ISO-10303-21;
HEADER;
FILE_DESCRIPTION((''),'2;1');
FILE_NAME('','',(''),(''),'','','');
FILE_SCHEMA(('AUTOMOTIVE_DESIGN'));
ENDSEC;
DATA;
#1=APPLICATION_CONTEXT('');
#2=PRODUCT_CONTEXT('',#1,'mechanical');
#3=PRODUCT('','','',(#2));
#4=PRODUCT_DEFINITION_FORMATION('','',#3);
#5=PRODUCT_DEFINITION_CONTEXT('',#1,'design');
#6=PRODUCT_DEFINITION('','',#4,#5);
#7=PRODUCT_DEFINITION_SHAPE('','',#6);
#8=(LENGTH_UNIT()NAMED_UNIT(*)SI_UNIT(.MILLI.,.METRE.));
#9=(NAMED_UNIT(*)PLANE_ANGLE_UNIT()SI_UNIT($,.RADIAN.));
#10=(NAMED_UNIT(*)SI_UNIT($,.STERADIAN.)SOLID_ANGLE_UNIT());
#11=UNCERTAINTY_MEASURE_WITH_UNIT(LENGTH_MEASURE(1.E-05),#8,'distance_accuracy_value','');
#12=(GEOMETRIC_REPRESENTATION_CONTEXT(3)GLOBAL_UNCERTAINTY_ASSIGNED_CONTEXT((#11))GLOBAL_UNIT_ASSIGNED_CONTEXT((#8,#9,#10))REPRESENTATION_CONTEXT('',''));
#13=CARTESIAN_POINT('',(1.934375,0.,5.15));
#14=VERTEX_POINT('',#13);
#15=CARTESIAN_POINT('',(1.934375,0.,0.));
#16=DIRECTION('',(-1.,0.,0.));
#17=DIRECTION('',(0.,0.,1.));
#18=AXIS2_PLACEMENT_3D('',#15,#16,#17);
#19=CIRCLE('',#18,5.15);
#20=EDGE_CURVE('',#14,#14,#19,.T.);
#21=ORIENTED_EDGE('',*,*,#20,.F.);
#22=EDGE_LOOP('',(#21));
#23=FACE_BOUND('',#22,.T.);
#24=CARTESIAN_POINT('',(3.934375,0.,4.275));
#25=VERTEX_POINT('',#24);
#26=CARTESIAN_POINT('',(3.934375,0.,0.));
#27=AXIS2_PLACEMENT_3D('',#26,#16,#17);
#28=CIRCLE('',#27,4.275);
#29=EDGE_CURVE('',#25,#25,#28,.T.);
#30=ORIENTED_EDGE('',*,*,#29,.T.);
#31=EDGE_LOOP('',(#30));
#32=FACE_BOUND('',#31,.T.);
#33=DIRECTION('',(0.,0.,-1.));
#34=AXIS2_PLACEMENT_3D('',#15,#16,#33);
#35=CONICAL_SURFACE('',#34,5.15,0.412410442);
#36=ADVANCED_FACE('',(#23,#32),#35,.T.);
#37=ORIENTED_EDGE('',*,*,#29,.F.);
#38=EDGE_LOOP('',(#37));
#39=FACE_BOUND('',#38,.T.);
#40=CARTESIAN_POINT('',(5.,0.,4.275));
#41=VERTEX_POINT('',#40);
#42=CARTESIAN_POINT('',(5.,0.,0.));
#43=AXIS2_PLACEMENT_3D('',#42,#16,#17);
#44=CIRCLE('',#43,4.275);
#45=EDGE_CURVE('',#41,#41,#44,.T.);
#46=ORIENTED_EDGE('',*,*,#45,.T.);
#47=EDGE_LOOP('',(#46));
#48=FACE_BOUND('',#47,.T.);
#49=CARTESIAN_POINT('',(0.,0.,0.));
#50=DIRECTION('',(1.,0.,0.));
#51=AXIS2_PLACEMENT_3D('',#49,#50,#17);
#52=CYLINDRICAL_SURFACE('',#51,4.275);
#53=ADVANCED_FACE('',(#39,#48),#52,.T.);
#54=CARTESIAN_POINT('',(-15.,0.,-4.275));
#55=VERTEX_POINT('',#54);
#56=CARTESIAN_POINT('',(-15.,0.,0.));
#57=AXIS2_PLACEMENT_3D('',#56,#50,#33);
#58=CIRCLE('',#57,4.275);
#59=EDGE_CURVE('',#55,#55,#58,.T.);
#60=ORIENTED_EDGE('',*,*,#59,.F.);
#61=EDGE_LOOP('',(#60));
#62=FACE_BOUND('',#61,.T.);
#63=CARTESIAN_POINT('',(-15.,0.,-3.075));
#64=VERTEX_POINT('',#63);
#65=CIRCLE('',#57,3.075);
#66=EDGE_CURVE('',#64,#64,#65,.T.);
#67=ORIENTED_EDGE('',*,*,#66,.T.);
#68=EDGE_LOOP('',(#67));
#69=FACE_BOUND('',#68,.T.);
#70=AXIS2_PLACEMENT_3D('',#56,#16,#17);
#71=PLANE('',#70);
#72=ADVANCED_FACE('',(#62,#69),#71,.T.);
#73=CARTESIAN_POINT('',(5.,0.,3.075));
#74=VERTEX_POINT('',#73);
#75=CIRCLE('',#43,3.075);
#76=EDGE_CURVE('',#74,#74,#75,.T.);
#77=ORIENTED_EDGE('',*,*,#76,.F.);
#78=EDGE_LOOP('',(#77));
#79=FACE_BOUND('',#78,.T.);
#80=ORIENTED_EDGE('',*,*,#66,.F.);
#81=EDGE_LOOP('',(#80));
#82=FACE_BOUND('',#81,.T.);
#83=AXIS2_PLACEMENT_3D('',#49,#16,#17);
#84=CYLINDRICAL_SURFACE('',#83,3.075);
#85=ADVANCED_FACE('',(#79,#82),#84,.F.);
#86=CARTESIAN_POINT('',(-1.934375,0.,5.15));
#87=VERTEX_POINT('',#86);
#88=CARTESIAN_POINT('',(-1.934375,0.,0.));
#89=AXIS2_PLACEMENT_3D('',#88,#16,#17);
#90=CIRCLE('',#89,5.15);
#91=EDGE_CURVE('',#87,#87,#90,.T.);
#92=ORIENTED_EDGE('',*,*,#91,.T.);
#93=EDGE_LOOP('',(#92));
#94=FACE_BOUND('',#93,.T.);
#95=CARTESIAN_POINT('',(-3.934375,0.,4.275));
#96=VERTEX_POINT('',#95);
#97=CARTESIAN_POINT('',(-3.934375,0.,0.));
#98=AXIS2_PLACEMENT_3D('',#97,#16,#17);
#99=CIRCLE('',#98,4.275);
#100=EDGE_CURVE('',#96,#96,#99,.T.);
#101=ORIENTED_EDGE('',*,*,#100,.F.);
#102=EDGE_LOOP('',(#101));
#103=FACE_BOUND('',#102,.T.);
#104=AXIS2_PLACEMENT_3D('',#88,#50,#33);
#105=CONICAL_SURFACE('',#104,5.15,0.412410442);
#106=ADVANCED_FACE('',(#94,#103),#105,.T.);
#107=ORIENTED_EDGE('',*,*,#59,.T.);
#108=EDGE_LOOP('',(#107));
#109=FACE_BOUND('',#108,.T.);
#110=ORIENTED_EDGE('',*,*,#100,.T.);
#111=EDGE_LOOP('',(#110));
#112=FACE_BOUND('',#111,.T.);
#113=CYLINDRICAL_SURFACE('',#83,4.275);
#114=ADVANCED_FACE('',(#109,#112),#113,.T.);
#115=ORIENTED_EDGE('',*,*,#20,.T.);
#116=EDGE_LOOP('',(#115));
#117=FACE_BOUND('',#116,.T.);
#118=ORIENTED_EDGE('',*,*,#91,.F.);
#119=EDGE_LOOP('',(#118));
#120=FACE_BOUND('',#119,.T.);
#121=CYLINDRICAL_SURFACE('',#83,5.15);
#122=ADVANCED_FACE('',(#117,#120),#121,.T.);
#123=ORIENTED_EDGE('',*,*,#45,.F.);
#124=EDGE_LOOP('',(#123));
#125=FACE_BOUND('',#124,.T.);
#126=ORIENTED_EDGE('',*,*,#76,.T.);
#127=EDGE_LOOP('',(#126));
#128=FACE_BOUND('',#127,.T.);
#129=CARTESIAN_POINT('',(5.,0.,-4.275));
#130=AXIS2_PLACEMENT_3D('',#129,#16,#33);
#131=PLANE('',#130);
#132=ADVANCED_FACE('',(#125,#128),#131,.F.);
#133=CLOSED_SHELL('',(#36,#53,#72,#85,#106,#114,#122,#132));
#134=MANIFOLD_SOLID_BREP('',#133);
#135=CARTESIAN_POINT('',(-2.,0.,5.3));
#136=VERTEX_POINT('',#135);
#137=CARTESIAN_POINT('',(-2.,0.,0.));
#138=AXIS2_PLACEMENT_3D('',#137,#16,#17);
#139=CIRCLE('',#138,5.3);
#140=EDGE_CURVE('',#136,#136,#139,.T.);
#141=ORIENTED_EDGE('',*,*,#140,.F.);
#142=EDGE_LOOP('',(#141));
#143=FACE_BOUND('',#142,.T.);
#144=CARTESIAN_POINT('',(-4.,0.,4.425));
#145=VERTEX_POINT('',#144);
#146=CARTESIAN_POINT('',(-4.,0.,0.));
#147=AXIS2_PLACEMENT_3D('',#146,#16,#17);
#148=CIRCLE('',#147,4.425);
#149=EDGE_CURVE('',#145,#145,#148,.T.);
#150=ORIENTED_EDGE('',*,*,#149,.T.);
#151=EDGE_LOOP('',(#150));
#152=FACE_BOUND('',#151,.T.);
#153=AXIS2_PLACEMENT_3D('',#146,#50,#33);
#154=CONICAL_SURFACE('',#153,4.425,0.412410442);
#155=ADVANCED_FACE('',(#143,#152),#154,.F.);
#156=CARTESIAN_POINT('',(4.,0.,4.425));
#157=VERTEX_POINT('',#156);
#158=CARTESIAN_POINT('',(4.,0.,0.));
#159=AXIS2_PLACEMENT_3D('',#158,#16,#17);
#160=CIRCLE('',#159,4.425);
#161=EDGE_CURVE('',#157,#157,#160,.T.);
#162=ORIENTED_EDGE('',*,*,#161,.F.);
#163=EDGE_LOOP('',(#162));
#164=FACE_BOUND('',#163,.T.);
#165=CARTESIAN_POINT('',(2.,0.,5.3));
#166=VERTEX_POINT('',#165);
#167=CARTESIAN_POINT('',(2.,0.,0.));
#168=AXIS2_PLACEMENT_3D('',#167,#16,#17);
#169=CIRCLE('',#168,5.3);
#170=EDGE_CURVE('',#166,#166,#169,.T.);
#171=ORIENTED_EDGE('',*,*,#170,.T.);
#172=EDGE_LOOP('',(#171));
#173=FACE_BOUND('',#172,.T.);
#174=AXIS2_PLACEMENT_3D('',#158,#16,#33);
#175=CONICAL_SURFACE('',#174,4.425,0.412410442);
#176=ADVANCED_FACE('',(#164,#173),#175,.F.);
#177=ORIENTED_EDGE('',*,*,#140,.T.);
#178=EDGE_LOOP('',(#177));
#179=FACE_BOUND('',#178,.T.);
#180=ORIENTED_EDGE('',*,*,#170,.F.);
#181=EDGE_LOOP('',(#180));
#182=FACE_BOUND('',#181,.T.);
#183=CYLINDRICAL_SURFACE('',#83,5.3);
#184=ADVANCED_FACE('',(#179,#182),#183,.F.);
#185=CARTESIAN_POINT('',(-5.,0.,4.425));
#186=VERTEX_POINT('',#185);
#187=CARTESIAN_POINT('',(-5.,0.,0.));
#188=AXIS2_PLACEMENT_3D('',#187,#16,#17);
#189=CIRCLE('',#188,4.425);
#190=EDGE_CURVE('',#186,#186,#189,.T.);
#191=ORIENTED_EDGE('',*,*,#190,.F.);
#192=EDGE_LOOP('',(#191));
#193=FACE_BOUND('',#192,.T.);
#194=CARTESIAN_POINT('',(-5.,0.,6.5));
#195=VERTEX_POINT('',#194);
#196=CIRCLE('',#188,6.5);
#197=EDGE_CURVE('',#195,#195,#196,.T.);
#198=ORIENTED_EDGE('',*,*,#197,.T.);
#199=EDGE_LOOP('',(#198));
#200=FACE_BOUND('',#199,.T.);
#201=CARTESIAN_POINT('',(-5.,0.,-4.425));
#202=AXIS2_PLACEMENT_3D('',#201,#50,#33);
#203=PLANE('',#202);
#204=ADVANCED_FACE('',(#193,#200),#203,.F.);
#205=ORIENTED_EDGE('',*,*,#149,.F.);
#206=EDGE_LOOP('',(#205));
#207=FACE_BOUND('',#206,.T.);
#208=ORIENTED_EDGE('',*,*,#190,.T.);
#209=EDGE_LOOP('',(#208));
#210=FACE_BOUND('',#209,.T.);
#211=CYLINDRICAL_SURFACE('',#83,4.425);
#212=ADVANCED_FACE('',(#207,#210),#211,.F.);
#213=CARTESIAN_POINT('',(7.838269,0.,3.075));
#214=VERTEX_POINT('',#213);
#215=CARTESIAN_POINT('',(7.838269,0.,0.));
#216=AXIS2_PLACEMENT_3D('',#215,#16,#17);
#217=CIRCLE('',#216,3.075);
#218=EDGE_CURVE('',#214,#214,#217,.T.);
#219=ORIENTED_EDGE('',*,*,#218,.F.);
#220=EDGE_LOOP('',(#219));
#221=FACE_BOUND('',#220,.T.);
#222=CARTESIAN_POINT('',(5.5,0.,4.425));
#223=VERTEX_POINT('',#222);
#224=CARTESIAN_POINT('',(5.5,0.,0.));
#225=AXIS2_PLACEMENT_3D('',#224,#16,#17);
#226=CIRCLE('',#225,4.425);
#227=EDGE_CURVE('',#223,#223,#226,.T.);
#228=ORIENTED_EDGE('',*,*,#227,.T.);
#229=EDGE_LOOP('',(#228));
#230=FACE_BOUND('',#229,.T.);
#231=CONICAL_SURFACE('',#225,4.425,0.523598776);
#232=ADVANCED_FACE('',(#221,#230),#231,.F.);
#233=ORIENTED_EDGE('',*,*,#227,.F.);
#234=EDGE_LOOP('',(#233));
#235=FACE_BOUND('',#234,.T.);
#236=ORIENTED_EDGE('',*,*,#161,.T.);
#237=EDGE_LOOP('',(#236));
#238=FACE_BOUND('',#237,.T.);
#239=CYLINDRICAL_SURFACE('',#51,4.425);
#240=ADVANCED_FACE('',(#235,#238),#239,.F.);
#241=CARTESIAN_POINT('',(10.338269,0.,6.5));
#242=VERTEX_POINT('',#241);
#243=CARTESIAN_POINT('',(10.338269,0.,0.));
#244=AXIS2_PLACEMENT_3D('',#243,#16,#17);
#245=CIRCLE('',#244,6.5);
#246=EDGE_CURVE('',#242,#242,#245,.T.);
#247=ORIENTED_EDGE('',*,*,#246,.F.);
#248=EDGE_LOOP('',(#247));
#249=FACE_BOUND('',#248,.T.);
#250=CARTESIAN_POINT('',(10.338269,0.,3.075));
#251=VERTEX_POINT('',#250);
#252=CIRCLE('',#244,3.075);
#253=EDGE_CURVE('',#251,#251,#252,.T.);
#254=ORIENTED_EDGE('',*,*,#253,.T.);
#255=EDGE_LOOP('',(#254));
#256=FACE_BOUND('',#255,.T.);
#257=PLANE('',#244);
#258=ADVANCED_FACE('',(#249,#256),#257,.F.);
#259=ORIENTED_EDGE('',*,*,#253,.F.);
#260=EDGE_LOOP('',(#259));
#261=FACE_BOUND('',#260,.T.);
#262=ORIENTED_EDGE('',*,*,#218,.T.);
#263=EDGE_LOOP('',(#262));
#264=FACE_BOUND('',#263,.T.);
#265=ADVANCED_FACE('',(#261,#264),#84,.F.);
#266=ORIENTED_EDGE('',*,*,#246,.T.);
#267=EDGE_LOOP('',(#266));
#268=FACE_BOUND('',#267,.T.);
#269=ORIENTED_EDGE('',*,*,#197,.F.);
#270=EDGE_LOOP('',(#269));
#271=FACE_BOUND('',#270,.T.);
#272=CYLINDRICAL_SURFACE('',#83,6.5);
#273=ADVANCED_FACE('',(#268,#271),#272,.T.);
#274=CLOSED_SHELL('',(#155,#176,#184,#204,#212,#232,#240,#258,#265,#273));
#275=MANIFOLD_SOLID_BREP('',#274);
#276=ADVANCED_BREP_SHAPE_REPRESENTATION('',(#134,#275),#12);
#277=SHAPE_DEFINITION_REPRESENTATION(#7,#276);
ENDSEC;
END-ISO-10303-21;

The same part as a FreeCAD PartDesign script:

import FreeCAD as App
import Part
import Sketcher
Q = App.Units.Quantity

doc = App.newDocument("Part")
body = doc.addObject("PartDesign::Body", "Body")
body.AllowCompound = True

# Sketch on XZ plane
sketch1 = body.newObject("Sketcher::SketchObject", "Sketch")
sketch1.AttachmentSupport = (doc.getObject("XZ_Plane"), [""])
sketch1.MapMode = "FlatFace"
sketch1.addGeometry(Part.LineSegment(App.Vector(-5, -6.5, 0), App.Vector(-5, -4.4, 0)), False)
sketch1.addGeometry(Part.LineSegment(App.Vector(-5, -4.4, 0), App.Vector(-4, -4.4, 0)), False)
sketch1.addGeometry(Part.LineSegment(App.Vector(-4, -4.4, 0), App.Vector(-2, -5.3, 0)), False)
sketch1.addGeometry(Part.LineSegment(App.Vector(-2, -5.3, 0), App.Vector(0, -5.3, 0)), False)
sketch1.addGeometry(Part.LineSegment(App.Vector(0, -5.3, 0), App.Vector(0, -6.5, 0)), False)
sketch1.addGeometry(Part.LineSegment(App.Vector(0, -6.5, 0), App.Vector(-5, -6.5, 0)), False)
sketch1.addGeometry(Part.LineSegment(App.Vector(0, -5.2, 0), App.Vector(-1.9, -5.2, 0)), False)
sketch1.addGeometry(Part.LineSegment(App.Vector(-1.9, -5.2, 0), App.Vector(-3.9, -4.3, 0)), False)
sketch1.addGeometry(Part.LineSegment(App.Vector(-3.9, -4.3, 0), App.Vector(-5, -4.3, 0)), False)
sketch1.addGeometry(Part.LineSegment(App.Vector(-5, -4.3, 0), App.Vector(-5, -3.1, 0)), False)
sketch1.addGeometry(Part.LineSegment(App.Vector(-5, -3.1, 0), App.Vector(0, -3.1, 0)), False)
sketch1.addGeometry(Part.LineSegment(App.Vector(0, -3.1, 0), App.Vector(0, -5.2, 0)), False)
sketch1.addConstraint(Sketcher.Constraint("Coincident", 0, 2, 1, 1))
sketch1.addConstraint(Sketcher.Constraint("Coincident", 1, 2, 2, 1))
sketch1.addConstraint(Sketcher.Constraint("Coincident", 2, 2, 3, 1))
sketch1.addConstraint(Sketcher.Constraint("Coincident", 3, 2, 4, 1))
sketch1.addConstraint(Sketcher.Constraint("Coincident", 4, 2, 5, 1))
sketch1.addConstraint(Sketcher.Constraint("Coincident", 5, 2, 0, 1))
sketch1.addConstraint(Sketcher.Constraint("Coincident", 6, 2, 7, 1))
sketch1.addConstraint(Sketcher.Constraint("Coincident", 7, 2, 8, 1))
sketch1.addConstraint(Sketcher.Constraint("Coincident", 8, 2, 9, 1))
sketch1.addConstraint(Sketcher.Constraint("Coincident", 9, 2, 10, 1))
sketch1.addConstraint(Sketcher.Constraint("Coincident", 10, 2, 11, 1))
sketch1.addConstraint(Sketcher.Constraint("Coincident", 11, 2, 6, 1))
sketch1.addConstraint(Sketcher.Constraint("Vertical", 0))
sketch1.addConstraint(Sketcher.Constraint("Horizontal", 1))
sketch1.addConstraint(Sketcher.Constraint("Horizontal", 3))
sketch1.addConstraint(Sketcher.Constraint("Vertical", 4))
sketch1.addConstraint(Sketcher.Constraint("Horizontal", 5))
sketch1.addConstraint(Sketcher.Constraint("Horizontal", 6))
sketch1.addConstraint(Sketcher.Constraint("Horizontal", 8))
sketch1.addConstraint(Sketcher.Constraint("Vertical", 9))
sketch1.addConstraint(Sketcher.Constraint("Horizontal", 10))
sketch1.addConstraint(Sketcher.Constraint("Vertical", 11))
sketch1.addConstraint(Sketcher.Constraint("PointOnObject", 3, 2, -2))
sketch1.addConstraint(Sketcher.Constraint("PointOnObject", 10, 2, -2))
sketch1.addConstraint(Sketcher.Constraint("Parallel", 2, 7))
sketch1.addConstraint(Sketcher.Constraint("Vertical", 5, 2, 8, 2))
sketch1.addConstraint(Sketcher.Constraint("Equal", 4, 9))
sketch1.addConstraint(Sketcher.Constraint("Equal", 0, 11))
sketch1.addConstraint(Sketcher.Constraint("DistanceX", 1, 1, 1, 2, Q("1 mm")))
sketch1.addConstraint(Sketcher.Constraint("DistanceX", 3, 1, 3, 2, Q("2 mm")))
sketch1.addConstraint(Sketcher.Constraint("DistanceX", 5, 2, 5, 1, Q("5 mm")))
sketch1.addConstraint(Sketcher.Constraint("DistanceY", 4, 2, 4, 1, Q("1.2 mm")))
sketch1.addConstraint(Sketcher.Constraint("DistanceY", 2, 2, -1, 1, Q("5.3 mm")))
sketch1.addConstraint(Sketcher.Constraint("DistanceY", 0, 1, 0, 2, Q("2.075 mm")))
sketch1.addConstraint(Sketcher.Constraint("DistanceY", 6, 2, -1, 1, Q("5.15 mm")))
sketch1.addConstraint(Sketcher.Constraint("DistanceX", 6, 2, 6, 1, Q("1.934375 mm")))
revolution = body.newObject("PartDesign::Revolution", "Revolution")
revolution.Profile = sketch1
revolution.ReferenceAxis = (sketch1, ["H_Axis"])
revolution.Angle = 360
doc.recompute()

mirrored = body.newObject("PartDesign::Mirrored", "Mirrored")
mirrored.Originals = [revolution]
mirrored.MirrorPlane = (doc.getObject("YZ_Plane"), [""])
body.Tip = mirrored

# Sketch on XZ plane
sketch2 = body.newObject("Sketcher::SketchObject", "Sketch001")
sketch2.AttachmentSupport = (doc.getObject("XZ_Plane"), [""])
sketch2.MapMode = "FlatFace"
sketch2.addGeometry(Part.LineSegment(App.Vector(10.3, -6.5, 0), App.Vector(5, -6.5, 0)), False)
sketch2.addGeometry(Part.LineSegment(App.Vector(5, -6.5, 0), App.Vector(5, -4.4, 0)), False)
sketch2.addGeometry(Part.LineSegment(App.Vector(5, -4.4, 0), App.Vector(5.5, -4.4, 0)), False)
sketch2.addGeometry(Part.LineSegment(App.Vector(5.5, -4.4, 0), App.Vector(7.8, -3.1, 0)), False)
sketch2.addGeometry(Part.LineSegment(App.Vector(7.8, -3.1, 0), App.Vector(10.3, -3.1, 0)), False)
sketch2.addGeometry(Part.LineSegment(App.Vector(10.3, -3.1, 0), App.Vector(10.3, -6.5, 0)), False)
sketch2.addConstraint(Sketcher.Constraint("Coincident", 0, 2, 1, 1))
sketch2.addConstraint(Sketcher.Constraint("Coincident", 1, 2, 2, 1))
sketch2.addConstraint(Sketcher.Constraint("Coincident", 2, 2, 3, 1))
sketch2.addConstraint(Sketcher.Constraint("Coincident", 3, 2, 4, 1))
sketch2.addConstraint(Sketcher.Constraint("Coincident", 4, 2, 5, 1))
sketch2.addConstraint(Sketcher.Constraint("Coincident", 5, 2, 0, 1))
sketch2.addConstraint(Sketcher.Constraint("Horizontal", 0))
sketch2.addConstraint(Sketcher.Constraint("Vertical", 1))
sketch2.addConstraint(Sketcher.Constraint("Horizontal", 2))
sketch2.addConstraint(Sketcher.Constraint("Horizontal", 4))
sketch2.addConstraint(Sketcher.Constraint("Vertical", 5))
sketch2.addConstraint(Sketcher.Constraint("Angle", 3, Q("30 deg")))
sketch2.addConstraint(Sketcher.Constraint("DistanceX", 2, 1, 2, 2, Q("0.5 mm")))
sketch2.addConstraint(Sketcher.Constraint("DistanceX", 4, 1, 4, 2, Q("2.5 mm")))
sketch2.addConstraint(Sketcher.Constraint("DistanceX", -1, 1, 0, 2, Q("5 mm")))
sketch2.addConstraint(Sketcher.Constraint("Distance", 3, Q("2.7 mm")))
sketch2.addConstraint(Sketcher.Constraint("DistanceY", 0, 2, -1, 1, Q("6.5 mm")))
sketch2.addConstraint(Sketcher.Constraint("DistanceY", 1, 1, 1, 2, Q("2.075 mm")))
revolution2 = body.newObject("PartDesign::Revolution", "Revolution001")
revolution2.Profile = sketch2
revolution2.ReferenceAxis = (sketch2, ["H_Axis"])
revolution2.Angle = 360

# Sketch on XZ plane
sketch3 = body.newObject("Sketcher::SketchObject", "Sketch002")
sketch3.AttachmentSupport = (doc.getObject("XZ_Plane"), [""])
sketch3.MapMode = "FlatFace"
sketch3.addGeometry(Part.LineSegment(App.Vector(-15, -4.3, 0), App.Vector(-15, -3.1, 0)), False)
sketch3.addGeometry(Part.LineSegment(App.Vector(-15, -3.1, 0), App.Vector(-5, -3.1, 0)), False)
sketch3.addGeometry(Part.LineSegment(App.Vector(-5, -3.1, 0), App.Vector(-5, -4.3, 0)), False)
sketch3.addGeometry(Part.LineSegment(App.Vector(-5, -4.3, 0), App.Vector(-15, -4.3, 0)), False)
sketch3.addConstraint(Sketcher.Constraint("Coincident", 0, 2, 1, 1))
sketch3.addConstraint(Sketcher.Constraint("Coincident", 1, 2, 2, 1))
sketch3.addConstraint(Sketcher.Constraint("Coincident", 2, 2, 3, 1))
sketch3.addConstraint(Sketcher.Constraint("Coincident", 3, 2, 0, 1))
sketch3.addConstraint(Sketcher.Constraint("Vertical", 0))
sketch3.addConstraint(Sketcher.Constraint("Horizontal", 1))
sketch3.addConstraint(Sketcher.Constraint("Vertical", 2))
sketch3.addConstraint(Sketcher.Constraint("Horizontal", 3))
sketch3.addConstraint(Sketcher.Constraint("DistanceX", 1, 1, 1, 2, Q("10 mm")))
sketch3.addConstraint(Sketcher.Constraint("DistanceY", 0, 1, 0, 2, Q("1.2 mm")))
sketch3.addConstraint(Sketcher.Constraint("DistanceX", 0, 2, -1, 1, Q("15 mm")))
sketch3.addConstraint(Sketcher.Constraint("DistanceY", 0, 2, -1, 1, Q("3.075 mm")))
revolution3 = body.newObject("PartDesign::Revolution", "Revolution002")
revolution3.Profile = sketch3
revolution3.ReferenceAxis = (sketch3, ["H_Axis"])
revolution3.Angle = 360

doc.recompute()
